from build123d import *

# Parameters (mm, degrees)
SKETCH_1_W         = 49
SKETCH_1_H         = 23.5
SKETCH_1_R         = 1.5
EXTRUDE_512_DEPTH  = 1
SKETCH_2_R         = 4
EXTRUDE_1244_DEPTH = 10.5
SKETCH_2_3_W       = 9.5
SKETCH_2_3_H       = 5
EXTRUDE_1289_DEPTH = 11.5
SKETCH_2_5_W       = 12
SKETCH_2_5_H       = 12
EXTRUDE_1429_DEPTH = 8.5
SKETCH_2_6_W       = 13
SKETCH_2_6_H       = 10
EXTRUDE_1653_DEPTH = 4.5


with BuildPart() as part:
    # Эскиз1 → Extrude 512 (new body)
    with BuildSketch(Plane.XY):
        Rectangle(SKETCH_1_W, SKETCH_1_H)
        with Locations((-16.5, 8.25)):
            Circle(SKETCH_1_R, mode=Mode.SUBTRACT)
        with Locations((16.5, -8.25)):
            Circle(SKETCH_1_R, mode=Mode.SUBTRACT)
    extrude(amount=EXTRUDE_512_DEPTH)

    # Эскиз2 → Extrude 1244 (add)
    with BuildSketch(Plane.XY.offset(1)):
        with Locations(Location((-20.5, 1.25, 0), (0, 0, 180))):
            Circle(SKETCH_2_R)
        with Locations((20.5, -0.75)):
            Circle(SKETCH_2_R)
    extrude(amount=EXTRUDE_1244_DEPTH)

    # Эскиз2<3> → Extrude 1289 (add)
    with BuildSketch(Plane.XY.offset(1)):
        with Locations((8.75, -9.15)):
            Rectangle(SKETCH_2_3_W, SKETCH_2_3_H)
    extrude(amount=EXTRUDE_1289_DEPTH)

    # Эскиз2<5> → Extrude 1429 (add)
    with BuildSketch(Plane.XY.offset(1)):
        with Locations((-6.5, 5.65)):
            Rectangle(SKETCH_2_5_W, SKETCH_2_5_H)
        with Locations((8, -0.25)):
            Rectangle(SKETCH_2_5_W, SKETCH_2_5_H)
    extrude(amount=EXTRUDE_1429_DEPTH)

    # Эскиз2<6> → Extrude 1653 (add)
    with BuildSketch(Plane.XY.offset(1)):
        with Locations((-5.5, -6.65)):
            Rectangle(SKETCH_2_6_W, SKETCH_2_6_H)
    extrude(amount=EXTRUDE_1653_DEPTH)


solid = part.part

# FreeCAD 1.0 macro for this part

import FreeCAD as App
import Part
import Sketcher

V = App.Vector

doc = App.newDocument("Part")
body = doc.addObject("PartDesign::Body", "Body")

# Sketch on XY plane
sketch1 = body.newObject("Sketcher::SketchObject", "Sketch")
sketch1.AttachmentSupport = (doc.getObject("XY_Plane"), [""])
sketch1.MapMode = "FlatFace"
sketch1.addGeometry([
    Part.LineSegment(V(-24.5, 11.8, 0), V(-24.5, -11.8, 0)),  # 0
    Part.LineSegment(V(-24.5, -11.8, 0), V(24.5, -11.8, 0)),  # 1
    Part.LineSegment(V(24.5, -11.8, 0), V(24.5, 11.8, 0)),  # 2
    Part.LineSegment(V(24.5, 11.8, 0), V(-24.5, 11.8, 0)),  # 3
    Part.Circle(V(16.5, -8.2, 0), V(0, 0, 1), 1.5),  # 4
    Part.Circle(V(-16.5, 8.2, 0), V(0, 0, 1), 1.5),  # 5
], False)
sketch1.addConstraint([
    Sketcher.Constraint("Coincident", 0, 2, 1, 1),
    Sketcher.Constraint("Coincident", 1, 2, 2, 1),
    Sketcher.Constraint("Coincident", 2, 2, 3, 1),
    Sketcher.Constraint("Coincident", 3, 2, 0, 1),
    Sketcher.Constraint("Vertical", 0),
    Sketcher.Constraint("Horizontal", 1),
    Sketcher.Constraint("Vertical", 2),
    Sketcher.Constraint("Horizontal", 3),
    Sketcher.Constraint("Equal", 4, 5),
    Sketcher.Constraint("Symmetric", 4, 3, 5, 3, -1, 1),
    Sketcher.Constraint("Symmetric", 0, 2, 2, 2, -1, 1),
    Sketcher.Constraint("Diameter", 4, 3.0),
    Sketcher.Constraint("DistanceX", 1, 1, 1, 2, 49.0),
    Sketcher.Constraint("DistanceY", 0, 2, 0, 1, 23.5),
    Sketcher.Constraint("DistanceX", 5, 3, 4, 3, 33.0),
    Sketcher.Constraint("DistanceY", 0, 2, 5, 3, 20.0),
])
pad1 = body.newObject("PartDesign::Pad", "Pad")
pad1.Profile = sketch1
pad1.Length = 1

# Sketch on XY plane
sketch2 = body.newObject("Sketcher::SketchObject", "Sketch001")
sketch2.AttachmentSupport = (doc.getObject("XY_Plane"), [""])
sketch2.MapMode = "FlatFace"
sketch2.AttachmentOffset = App.Placement(V(0, 0, 1), App.Rotation())
sketch2.addGeometry([
    Part.Circle(V(-20.5, 1.2, 0), V(0, 0, 1), 4),
    Part.Circle(V(20.5, -0.8, 0), V(0, 0, 1), 4),
], False)
sketch2.addConstraint([
    Sketcher.Constraint("Equal", 0, 1),
    Sketcher.Constraint("Diameter", 0, 8.0),
    Sketcher.Constraint("DistanceX", 0, 3, 1, 3, 41.0),
    Sketcher.Constraint("DistanceY", 1, 3, 0, 3, 2.0),
    Sketcher.Constraint("DistanceX", 0, 3, -1, 1, 20.5),
    Sketcher.Constraint("DistanceY", -1, 1, 0, 3, 1.25),
])
pad2 = body.newObject("PartDesign::Pad", "Pad001")
pad2.Profile = sketch2
pad2.Length = 10.5

# Sketch on XY plane
sketch3 = body.newObject("Sketcher::SketchObject", "Sketch002")
sketch3.AttachmentSupport = (doc.getObject("XY_Plane"), [""])
sketch3.MapMode = "FlatFace"
sketch3.AttachmentOffset = App.Placement(V(0, 0, 1), App.Rotation())
sketch3.addGeometry([
    Part.LineSegment(V(4, -7, 0), V(4, -12, 0)),
    Part.LineSegment(V(4, -12, 0), V(14, -12, 0)),
    Part.LineSegment(V(14, -12, 0), V(14, -7, 0)),
    Part.LineSegment(V(14, -7, 0), V(4, -7, 0)),
], False)
sketch3.addConstraint([
    Sketcher.Constraint("Coincident", 0, 2, 1, 1),
    Sketcher.Constraint("Coincident", 1, 2, 2, 1),
    Sketcher.Constraint("Coincident", 2, 2, 3, 1),
    Sketcher.Constraint("Coincident", 3, 2, 0, 1),
    Sketcher.Constraint("Vertical", 0),
    Sketcher.Constraint("Horizontal", 1),
    Sketcher.Constraint("Vertical", 2),
    Sketcher.Constraint("Horizontal", 3),
    Sketcher.Constraint("DistanceY", 0, 2, 0, 1, 5.0),
    Sketcher.Constraint("DistanceX", 1, 1, 1, 2, 9.5),
    Sketcher.Constraint("DistanceX", -1, 1, 0, 2, 4.0),
    Sketcher.Constraint("DistanceY", 0, 2, -1, 1, 11.65),
])
pad3 = body.newObject("PartDesign::Pad", "Pad002")
pad3.Profile = sketch3
pad3.Length = 11.5

# Sketch on XY plane
sketch4 = body.newObject("Sketcher::SketchObject", "Sketch003")
sketch4.AttachmentSupport = (doc.getObject("XY_Plane"), [""])
sketch4.MapMode = "FlatFace"
sketch4.AttachmentOffset = App.Placement(V(0, 0, 1), App.Rotation())
sketch4.addGeometry([
    Part.LineSegment(V(-12, 12, 0), V(-12, 0, 0)),  # 0
    Part.LineSegment(V(-12, 0, 0), V(0, 0, 0)),  # 1
    Part.LineSegment(V(0, 0, 0), V(0, 12, 0)),  # 2
    Part.LineSegment(V(0, 12, 0), V(-12, 12, 0)),  # 3
    Part.LineSegment(V(2, 6, 0), V(2, -6, 0)),  # 4
    Part.LineSegment(V(2, -6, 0), V(14, -6, 0)),  # 5
    Part.LineSegment(V(14, -6, 0), V(14, 6, 0)),  # 6
    Part.LineSegment(V(14, 6, 0), V(2, 6, 0)),  # 7
], False)
sketch4.addConstraint([
    Sketcher.Constraint("Coincident", 0, 2, 1, 1),
    Sketcher.Constraint("Coincident", 1, 2, 2, 1),
    Sketcher.Constraint("Coincident", 2, 2, 3, 1),
    Sketcher.Constraint("Coincident", 3, 2, 0, 1),
    Sketcher.Constraint("Coincident", 4, 2, 5, 1),
    Sketcher.Constraint("Coincident", 5, 2, 6, 1),
    Sketcher.Constraint("Coincident", 6, 2, 7, 1),
    Sketcher.Constraint("Coincident", 7, 2, 4, 1),
    Sketcher.Constraint("Vertical", 0),
    Sketcher.Constraint("Horizontal", 1),
    Sketcher.Constraint("Vertical", 2),
    Sketcher.Constraint("Horizontal", 3),
    Sketcher.Constraint("Vertical", 4),
    Sketcher.Constraint("Horizontal", 5),
    Sketcher.Constraint("Vertical", 6),
    Sketcher.Constraint("Horizontal", 7),
    Sketcher.Constraint("Equal", 3, 5),
    Sketcher.Constraint("Equal", 7, 0),
    Sketcher.Constraint("Equal", 2, 4),
    Sketcher.Constraint("DistanceX", 1, 1, 1, 2, 12.0),
    Sketcher.Constraint("DistanceX", -1, 1, 4, 2, 2.0),
    Sketcher.Constraint("DistanceX", 0, 2, -1, 1, 12.5),
    Sketcher.Constraint("DistanceY", 4, 2, 1, 2, 5.9),
    Sketcher.Constraint("DistanceY", 0, 2, -1, 1, 0.35),
])
pad4 = body.newObject("PartDesign::Pad", "Pad003")
pad4.Profile = sketch4
pad4.Length = 8.5

# Sketch on XY plane
sketch5 = body.newObject("Sketcher::SketchObject", "Sketch004")
sketch5.AttachmentSupport = (doc.getObject("XY_Plane"), [""])
sketch5.MapMode = "FlatFace"
sketch5.AttachmentOffset = App.Placement(V(0, 0, 1), App.Rotation())
sketch5.addGeometry([
    Part.LineSegment(V(-12, -2, 0), V(-12, -12, 0)),
    Part.LineSegment(V(-12, -12, 0), V(1, -12, 0)),
    Part.LineSegment(V(1, -12, 0), V(1, -2, 0)),
    Part.LineSegment(V(1, -2, 0), V(-12, -2, 0)),
], False)
sketch5.addConstraint([
    Sketcher.Constraint("Coincident", 0, 2, 1, 1),
    Sketcher.Constraint("Coincident", 1, 2, 2, 1),
    Sketcher.Constraint("Coincident", 2, 2, 3, 1),
    Sketcher.Constraint("Coincident", 3, 2, 0, 1),
    Sketcher.Constraint("Vertical", 0),
    Sketcher.Constraint("Horizontal", 1),
    Sketcher.Constraint("Vertical", 2),
    Sketcher.Constraint("Horizontal", 3),
    Sketcher.Constraint("DistanceX", 1, 1, 1, 2, 13.0),
    Sketcher.Constraint("DistanceY", 0, 2, 0, 1, 10.0),
    Sketcher.Constraint("DistanceX", 0, 2, -1, 1, 12.0),
    Sketcher.Constraint("DistanceY", 0, 2, -1, 1, 11.65),
])
pad5 = body.newObject("PartDesign::Pad", "Pad004")
pad5.Profile = sketch5
pad5.Length = 4.5

doc.recompute()
